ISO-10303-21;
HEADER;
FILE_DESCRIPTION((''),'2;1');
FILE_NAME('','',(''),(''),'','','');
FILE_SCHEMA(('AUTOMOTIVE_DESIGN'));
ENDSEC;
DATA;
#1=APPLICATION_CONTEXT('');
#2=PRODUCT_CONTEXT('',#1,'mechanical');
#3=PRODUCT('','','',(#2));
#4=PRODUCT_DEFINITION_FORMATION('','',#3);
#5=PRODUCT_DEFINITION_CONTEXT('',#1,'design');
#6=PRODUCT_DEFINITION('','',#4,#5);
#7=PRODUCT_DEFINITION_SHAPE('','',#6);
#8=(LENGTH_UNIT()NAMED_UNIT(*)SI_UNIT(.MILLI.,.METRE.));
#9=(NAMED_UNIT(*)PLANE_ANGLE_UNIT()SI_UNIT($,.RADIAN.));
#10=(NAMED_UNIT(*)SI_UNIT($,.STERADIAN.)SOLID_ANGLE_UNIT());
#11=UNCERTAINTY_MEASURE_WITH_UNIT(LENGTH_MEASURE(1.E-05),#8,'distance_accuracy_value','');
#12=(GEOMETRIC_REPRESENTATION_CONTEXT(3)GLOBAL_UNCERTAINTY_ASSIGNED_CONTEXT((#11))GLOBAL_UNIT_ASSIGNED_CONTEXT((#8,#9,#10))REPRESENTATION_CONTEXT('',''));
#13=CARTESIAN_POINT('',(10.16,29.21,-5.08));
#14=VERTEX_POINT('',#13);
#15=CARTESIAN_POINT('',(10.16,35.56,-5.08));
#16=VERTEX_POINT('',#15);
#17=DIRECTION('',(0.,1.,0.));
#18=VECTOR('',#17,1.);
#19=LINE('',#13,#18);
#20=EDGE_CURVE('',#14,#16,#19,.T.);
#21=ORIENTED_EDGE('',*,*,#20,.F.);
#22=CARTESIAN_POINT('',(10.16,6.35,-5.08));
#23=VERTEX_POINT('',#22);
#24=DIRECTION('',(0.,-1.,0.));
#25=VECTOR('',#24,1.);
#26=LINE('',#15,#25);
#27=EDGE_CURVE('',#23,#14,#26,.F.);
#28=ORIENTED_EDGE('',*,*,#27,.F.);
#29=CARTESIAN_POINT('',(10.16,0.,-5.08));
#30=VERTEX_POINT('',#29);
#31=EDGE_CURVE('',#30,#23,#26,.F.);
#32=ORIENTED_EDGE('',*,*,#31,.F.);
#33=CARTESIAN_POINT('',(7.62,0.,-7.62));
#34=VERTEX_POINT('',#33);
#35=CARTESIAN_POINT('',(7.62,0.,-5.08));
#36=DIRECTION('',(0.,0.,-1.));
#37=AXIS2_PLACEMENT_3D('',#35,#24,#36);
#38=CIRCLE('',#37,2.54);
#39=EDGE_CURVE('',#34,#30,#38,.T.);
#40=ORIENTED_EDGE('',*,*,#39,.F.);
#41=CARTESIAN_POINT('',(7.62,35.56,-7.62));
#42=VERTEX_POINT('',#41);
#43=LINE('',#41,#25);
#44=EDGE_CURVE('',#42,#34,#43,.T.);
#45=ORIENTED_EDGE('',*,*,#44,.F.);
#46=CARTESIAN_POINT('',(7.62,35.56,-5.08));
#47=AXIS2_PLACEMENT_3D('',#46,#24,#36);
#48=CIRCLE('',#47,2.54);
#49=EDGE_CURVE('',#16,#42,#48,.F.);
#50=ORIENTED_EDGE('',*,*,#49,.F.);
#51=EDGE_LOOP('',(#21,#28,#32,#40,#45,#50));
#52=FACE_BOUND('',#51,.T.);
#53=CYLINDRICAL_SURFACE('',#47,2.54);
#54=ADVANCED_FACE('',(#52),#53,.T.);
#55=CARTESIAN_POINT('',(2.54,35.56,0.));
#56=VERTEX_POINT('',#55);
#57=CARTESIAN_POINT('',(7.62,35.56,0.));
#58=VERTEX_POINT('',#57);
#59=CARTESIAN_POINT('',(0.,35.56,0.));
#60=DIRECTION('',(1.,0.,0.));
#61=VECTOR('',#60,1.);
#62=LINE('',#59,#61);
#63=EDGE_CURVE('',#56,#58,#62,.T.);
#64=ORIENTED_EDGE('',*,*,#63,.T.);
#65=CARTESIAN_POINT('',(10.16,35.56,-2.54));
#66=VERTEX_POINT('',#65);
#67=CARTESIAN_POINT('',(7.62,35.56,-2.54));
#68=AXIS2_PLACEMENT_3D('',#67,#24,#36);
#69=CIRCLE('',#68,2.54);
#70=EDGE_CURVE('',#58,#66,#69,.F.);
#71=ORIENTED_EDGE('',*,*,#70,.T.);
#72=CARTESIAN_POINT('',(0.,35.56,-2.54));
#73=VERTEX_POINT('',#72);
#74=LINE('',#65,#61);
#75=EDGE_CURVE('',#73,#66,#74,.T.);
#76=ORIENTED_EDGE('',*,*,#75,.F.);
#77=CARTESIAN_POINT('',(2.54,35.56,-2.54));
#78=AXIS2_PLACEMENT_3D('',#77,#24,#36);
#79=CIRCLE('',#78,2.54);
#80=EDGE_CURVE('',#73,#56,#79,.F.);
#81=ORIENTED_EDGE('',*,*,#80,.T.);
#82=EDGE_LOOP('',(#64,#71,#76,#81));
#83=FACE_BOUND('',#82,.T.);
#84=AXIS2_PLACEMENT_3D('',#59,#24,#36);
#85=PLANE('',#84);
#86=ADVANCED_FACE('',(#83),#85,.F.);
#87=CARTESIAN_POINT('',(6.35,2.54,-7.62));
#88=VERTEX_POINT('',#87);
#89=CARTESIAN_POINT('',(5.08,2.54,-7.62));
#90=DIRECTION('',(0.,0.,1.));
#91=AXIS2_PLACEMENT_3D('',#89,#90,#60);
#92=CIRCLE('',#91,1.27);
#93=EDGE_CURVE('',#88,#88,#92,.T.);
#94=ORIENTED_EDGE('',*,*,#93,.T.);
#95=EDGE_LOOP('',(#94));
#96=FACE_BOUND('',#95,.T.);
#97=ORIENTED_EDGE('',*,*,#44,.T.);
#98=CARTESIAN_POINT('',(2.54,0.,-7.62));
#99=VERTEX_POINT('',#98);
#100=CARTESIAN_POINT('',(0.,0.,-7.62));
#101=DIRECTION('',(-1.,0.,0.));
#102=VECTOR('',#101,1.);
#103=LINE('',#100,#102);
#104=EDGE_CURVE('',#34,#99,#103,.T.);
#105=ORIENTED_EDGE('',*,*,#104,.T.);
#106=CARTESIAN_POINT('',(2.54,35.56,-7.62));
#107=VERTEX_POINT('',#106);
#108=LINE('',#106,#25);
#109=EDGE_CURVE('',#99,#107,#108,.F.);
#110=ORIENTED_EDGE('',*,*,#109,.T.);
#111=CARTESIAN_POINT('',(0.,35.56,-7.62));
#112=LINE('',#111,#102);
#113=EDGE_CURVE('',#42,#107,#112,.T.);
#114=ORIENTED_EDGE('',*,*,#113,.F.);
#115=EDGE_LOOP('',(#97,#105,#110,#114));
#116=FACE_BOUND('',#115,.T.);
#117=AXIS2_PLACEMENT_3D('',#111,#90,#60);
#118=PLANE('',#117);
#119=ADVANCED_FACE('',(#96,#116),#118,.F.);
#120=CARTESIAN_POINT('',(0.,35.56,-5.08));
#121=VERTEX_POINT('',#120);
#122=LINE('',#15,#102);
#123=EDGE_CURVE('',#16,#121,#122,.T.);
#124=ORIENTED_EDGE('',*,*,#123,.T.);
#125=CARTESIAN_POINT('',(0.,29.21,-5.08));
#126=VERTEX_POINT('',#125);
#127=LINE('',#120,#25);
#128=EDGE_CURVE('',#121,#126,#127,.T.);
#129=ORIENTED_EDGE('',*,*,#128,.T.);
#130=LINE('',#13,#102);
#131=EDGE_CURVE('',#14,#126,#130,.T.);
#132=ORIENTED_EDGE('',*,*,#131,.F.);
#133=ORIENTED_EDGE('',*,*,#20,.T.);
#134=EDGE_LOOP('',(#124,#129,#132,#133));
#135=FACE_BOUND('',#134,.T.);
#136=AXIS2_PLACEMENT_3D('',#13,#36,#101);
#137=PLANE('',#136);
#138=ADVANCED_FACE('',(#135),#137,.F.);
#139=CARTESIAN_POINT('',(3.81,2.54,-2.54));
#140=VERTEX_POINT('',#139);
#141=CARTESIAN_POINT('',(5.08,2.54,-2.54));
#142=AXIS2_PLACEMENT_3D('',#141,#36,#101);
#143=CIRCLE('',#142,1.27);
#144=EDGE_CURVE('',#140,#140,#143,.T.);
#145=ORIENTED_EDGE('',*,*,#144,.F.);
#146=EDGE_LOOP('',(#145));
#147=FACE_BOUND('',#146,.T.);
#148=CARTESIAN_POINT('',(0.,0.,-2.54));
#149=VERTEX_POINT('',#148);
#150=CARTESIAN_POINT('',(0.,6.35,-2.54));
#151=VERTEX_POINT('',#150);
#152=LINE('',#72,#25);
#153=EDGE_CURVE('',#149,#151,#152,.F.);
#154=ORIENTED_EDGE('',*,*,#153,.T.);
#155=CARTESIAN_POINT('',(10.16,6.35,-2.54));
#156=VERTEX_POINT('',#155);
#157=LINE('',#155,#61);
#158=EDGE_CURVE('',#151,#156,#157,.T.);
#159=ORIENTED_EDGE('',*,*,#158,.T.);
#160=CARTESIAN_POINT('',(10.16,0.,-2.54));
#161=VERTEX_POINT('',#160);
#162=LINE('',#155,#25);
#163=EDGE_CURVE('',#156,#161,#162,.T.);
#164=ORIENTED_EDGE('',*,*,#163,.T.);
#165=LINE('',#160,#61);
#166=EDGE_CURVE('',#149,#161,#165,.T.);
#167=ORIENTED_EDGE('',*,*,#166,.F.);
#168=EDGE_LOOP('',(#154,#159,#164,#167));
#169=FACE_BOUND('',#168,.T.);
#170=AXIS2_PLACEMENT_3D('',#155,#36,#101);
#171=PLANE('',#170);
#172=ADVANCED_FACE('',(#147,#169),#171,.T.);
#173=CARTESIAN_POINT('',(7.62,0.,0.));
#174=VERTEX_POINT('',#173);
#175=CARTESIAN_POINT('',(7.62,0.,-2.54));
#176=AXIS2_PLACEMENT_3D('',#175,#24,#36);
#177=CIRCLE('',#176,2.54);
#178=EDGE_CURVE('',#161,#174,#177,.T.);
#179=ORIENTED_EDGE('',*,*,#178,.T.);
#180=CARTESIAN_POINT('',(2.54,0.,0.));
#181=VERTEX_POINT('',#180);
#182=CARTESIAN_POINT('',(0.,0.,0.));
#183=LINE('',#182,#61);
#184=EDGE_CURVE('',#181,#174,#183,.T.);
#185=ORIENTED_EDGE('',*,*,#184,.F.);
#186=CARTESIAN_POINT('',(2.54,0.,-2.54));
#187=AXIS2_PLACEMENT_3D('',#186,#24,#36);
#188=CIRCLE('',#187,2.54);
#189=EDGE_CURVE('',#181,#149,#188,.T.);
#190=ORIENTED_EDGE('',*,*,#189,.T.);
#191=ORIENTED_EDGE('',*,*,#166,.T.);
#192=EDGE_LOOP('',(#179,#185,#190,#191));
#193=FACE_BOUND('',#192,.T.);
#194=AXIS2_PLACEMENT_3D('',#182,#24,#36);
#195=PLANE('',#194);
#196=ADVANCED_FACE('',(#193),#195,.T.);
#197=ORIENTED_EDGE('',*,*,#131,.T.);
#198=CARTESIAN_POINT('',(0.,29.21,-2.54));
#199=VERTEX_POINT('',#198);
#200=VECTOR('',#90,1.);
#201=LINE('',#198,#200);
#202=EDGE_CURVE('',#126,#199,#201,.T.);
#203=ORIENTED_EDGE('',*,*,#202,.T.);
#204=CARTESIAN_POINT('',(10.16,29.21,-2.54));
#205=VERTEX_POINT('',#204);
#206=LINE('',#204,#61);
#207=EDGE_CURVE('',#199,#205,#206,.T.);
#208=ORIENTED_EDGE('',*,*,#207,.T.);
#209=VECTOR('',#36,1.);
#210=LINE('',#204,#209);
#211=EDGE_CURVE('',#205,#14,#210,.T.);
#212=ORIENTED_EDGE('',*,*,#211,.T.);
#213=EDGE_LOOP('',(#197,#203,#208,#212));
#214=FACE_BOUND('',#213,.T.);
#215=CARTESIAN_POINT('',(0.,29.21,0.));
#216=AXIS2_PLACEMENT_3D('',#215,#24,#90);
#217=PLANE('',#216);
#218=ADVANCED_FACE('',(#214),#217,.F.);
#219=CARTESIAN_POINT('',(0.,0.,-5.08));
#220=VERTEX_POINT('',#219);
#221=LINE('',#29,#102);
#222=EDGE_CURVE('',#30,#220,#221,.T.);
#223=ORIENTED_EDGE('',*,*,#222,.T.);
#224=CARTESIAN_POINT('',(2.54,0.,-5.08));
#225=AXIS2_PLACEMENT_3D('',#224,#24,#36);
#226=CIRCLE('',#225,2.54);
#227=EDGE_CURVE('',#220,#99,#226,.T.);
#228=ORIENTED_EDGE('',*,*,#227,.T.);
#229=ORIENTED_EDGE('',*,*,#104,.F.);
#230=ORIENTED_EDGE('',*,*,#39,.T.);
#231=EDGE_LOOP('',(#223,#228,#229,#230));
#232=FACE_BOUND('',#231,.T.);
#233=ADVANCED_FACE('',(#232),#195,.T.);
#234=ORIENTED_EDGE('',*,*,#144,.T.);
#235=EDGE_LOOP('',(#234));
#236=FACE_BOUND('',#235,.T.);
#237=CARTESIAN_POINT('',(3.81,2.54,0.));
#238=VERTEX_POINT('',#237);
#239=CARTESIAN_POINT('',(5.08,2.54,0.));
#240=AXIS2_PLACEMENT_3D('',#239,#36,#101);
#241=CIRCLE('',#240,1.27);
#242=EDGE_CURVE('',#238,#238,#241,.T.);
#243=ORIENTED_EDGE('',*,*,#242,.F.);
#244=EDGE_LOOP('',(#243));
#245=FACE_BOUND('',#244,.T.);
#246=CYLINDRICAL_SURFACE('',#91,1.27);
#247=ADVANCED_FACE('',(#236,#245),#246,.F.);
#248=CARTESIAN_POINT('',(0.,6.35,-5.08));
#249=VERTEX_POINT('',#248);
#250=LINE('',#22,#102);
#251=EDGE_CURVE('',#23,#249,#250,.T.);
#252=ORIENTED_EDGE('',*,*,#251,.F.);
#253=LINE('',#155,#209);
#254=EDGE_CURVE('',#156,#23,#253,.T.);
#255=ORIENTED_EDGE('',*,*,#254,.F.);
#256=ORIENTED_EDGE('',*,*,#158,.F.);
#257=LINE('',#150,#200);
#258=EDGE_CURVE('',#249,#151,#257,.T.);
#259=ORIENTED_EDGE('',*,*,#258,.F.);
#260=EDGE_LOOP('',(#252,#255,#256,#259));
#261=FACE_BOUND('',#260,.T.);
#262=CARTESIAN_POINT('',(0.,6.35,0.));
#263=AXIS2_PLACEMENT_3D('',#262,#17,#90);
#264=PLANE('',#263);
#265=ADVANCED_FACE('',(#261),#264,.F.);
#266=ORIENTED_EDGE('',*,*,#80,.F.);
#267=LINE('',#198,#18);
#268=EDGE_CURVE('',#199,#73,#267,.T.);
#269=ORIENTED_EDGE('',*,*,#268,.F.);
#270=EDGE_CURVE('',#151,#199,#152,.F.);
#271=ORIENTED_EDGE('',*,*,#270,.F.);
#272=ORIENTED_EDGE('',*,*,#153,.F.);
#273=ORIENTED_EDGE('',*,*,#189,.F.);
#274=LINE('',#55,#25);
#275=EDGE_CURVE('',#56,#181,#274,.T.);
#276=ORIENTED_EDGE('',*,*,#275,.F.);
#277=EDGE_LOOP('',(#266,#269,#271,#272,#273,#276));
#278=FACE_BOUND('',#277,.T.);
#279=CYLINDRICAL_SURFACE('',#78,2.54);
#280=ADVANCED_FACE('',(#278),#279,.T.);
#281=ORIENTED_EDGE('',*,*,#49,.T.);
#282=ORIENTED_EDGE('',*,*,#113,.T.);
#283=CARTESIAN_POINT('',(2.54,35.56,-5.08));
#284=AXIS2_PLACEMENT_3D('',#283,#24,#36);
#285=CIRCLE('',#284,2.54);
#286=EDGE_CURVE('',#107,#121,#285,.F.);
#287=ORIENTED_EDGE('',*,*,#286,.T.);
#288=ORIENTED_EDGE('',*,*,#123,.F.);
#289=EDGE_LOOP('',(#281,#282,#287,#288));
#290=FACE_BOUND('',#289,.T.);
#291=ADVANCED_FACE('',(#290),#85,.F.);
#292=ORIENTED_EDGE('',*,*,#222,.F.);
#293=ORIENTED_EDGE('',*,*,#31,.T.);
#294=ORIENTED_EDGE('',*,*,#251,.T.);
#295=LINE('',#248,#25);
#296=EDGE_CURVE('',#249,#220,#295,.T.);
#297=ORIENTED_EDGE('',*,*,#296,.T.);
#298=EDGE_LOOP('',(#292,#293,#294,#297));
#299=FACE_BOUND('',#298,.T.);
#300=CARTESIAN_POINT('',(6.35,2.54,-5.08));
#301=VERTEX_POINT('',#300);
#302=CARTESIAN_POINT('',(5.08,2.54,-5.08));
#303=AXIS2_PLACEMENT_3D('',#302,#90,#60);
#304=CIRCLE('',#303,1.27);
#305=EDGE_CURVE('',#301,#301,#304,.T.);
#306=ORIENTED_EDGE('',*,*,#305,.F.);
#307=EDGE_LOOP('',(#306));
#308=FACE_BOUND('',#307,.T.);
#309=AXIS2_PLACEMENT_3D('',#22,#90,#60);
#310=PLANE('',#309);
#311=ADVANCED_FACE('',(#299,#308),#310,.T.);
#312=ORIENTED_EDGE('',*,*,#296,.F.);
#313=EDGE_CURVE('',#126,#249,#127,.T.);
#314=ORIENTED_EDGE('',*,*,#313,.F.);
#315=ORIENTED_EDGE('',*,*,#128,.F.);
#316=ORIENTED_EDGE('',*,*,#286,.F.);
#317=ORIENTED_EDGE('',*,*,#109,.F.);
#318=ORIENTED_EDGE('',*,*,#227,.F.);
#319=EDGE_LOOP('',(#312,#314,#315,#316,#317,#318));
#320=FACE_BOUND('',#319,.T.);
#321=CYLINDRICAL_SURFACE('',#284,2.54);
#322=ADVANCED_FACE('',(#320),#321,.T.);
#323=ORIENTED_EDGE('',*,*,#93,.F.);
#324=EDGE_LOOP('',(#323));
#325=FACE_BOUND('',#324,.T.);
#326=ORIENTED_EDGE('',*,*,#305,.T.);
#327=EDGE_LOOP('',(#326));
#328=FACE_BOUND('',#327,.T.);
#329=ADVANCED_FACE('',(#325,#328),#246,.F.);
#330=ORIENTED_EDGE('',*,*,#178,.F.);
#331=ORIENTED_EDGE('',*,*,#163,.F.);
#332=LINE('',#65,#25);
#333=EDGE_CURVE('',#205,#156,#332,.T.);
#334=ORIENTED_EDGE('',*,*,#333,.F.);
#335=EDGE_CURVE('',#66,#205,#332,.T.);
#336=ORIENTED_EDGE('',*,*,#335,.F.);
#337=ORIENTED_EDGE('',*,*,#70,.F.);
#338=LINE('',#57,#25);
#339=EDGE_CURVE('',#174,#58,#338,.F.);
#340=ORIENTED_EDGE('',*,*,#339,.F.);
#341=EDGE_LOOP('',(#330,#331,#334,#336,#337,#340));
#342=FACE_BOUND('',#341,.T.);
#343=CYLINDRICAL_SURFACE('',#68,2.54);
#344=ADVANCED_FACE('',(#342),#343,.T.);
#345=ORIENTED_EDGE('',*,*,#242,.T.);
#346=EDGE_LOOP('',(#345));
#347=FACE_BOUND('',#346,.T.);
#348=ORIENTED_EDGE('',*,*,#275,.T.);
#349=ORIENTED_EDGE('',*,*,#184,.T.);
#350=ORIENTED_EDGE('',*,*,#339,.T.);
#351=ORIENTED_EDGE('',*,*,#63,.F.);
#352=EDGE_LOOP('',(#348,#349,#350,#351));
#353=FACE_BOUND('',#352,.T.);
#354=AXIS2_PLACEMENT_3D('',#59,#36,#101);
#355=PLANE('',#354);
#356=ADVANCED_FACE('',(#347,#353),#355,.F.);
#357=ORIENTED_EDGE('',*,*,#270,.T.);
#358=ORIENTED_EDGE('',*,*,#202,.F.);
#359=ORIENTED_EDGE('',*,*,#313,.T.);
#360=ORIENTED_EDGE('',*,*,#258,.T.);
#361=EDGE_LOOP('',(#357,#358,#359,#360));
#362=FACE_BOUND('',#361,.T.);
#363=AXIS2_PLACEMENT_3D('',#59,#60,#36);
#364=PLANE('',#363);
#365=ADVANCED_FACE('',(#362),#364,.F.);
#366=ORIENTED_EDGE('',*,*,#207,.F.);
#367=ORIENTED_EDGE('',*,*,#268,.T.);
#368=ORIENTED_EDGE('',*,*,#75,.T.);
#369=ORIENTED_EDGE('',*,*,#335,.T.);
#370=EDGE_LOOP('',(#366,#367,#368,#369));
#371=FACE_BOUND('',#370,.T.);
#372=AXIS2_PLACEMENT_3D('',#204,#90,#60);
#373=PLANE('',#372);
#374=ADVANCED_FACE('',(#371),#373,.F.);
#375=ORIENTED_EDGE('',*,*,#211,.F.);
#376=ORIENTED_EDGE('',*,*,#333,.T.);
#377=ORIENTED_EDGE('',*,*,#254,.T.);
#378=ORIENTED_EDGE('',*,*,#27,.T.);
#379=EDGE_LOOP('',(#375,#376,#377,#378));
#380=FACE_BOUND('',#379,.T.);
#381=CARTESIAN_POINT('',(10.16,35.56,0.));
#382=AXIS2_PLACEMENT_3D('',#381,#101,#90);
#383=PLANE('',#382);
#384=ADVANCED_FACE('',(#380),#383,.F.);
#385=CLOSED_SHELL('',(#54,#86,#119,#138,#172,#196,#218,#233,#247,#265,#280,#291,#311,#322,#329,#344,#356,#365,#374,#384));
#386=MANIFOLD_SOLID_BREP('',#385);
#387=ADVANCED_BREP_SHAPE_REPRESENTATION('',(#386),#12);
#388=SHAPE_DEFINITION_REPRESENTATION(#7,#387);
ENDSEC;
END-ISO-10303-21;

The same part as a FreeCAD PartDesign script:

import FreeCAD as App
import Part
import Sketcher
from FreeCAD import Vector
Q = App.Units.Quantity


def edges_at(feature, points):
    """Names of the edges that pass closest to the given points."""
    edges = feature.Shape.Edges
    near = lambda p: min(range(len(edges)), key=lambda i: edges[i].distToShape(Part.Vertex(*p))[0])
    return sorted({f"Edge{near(p) + 1}" for p in points})


def add_polygon(sketch, points):
    """Adds a closed chain of lines whose ends are joined by coincident constraints."""
    first, n = sketch.GeometryCount, len(points)
    for a, b in zip(points, points[1:] + points[:1]):
        sketch.addGeometry(Part.LineSegment(App.Vector(*a, 0), App.Vector(*b, 0)), False)
    for i in range(n):
        sketch.addConstraint(Sketcher.Constraint("Coincident", first + i, 2, first + (i + 1) % n, 1))

doc = App.newDocument("Part")
body = doc.addObject("PartDesign::Body", "Body")

# Sketch on XZ plane
sketch1 = body.newObject("Sketcher::SketchObject", "Sketch")
sketch1.AttachmentSupport = (doc.getObject("XZ_Plane"), [""])
sketch1.MapMode = "FlatFace"
add_polygon(sketch1, [(0, -8), (0, 0), (10, 0), (10, -8)])  # lines 0-3
sketch1.addConstraint([
    Sketcher.Constraint("Vertical", 0),
    Sketcher.Constraint("Horizontal", 1),
    Sketcher.Constraint("Vertical", 2),
    Sketcher.Constraint("Horizontal", 3),
    Sketcher.Constraint("Coincident", 0, 2, -1, 1),
    Sketcher.Constraint("DistanceX", 1, 1, 1, 2, Q("0.4 in")),
    Sketcher.Constraint("DistanceY", 0, 1, 0, 2, Q("0.3 in")),
])
pad1 = body.newObject("PartDesign::Pad", "Pad")
pad1.Profile = sketch1
pad1.Length = Q("1.4 in")
pad1.Reversed = True
doc.recompute()

fillet = body.newObject("PartDesign::Fillet", "Fillet")
fillet.Base = (pad1, edges_at(pad1, [
    (0, 17.78, -7.62),
    (10.16, 17.78, -7.62),
    (10.16, 17.78, 0),
    (0, 17.78, 0),
]))
fillet.Radius = Q("0.1 in")

# Sketch on XZ plane
sketch2 = body.newObject("Sketcher::SketchObject", "Sketch001")
sketch2.AttachmentSupport = (doc.getObject("XZ_Plane"), [""])
sketch2.MapMode = "FlatFace"
add_polygon(sketch2, [(0, -5.1), (0, -2.5), (10.2, -2.5), (10.2, -5.1)])  # lines 0-3
sketch2.addConstraint([
    Sketcher.Constraint("Vertical", 0),
    Sketcher.Constraint("Horizontal", 1),
    Sketcher.Constraint("Vertical", 2),
    Sketcher.Constraint("Horizontal", 3),
    Sketcher.Constraint("PointOnObject", 0, 2, -2),
    Sketcher.Constraint("DistanceX", 1, 1, 1, 2, Q("0.4 in")),
    Sketcher.Constraint("DistanceY", 0, 1, 0, 2, Q("0.1 in")),
    Sketcher.Constraint("DistanceY", 0, 2, -1, 1, Q("0.1 in")),
])
pocket1 = body.newObject("PartDesign::Pocket", "Pocket")
pocket1.Profile = sketch2
pocket1.Length = Q("0.25 in")
doc.recompute()

datumplane = body.newObject("PartDesign::Plane", "DatumPlane")
datumplane.AttachmentSupport = (doc.getObject("XZ_Plane"), [""])
datumplane.MapMode = "FlatFace"
datumplane.AttachmentOffset = App.Placement(Vector(0, 0, -0.7 * 25.4), App.Rotation())
mirrored = body.newObject("PartDesign::Mirrored", "Mirrored")
mirrored.Originals = [pocket1]
mirrored.MirrorPlane = (datumplane, [""])
body.Tip = mirrored

# Sketch on XY plane
sketch3 = body.newObject("Sketcher::SketchObject", "Sketch002")
sketch3.AttachmentSupport = (doc.getObject("XY_Plane"), [""])
sketch3.MapMode = "FlatFace"
sketch3.addGeometry(Part.Circle(Vector(5.1, 2.5, 0), Vector(0, 0, 1), 1.3), False)
sketch3.addConstraint([
    Sketcher.Constraint("Diameter", 0, Q("0.1 in")),
    Sketcher.Constraint("DistanceX", -1, 1, 0, 3, Q("0.2 in")),
    Sketcher.Constraint("DistanceY", -1, 1, 0, 3, Q("0.1 in")),
])
pocket2 = body.newObject("PartDesign::Pocket", "Pocket001")
pocket2.Profile = sketch3
pocket2.Type = "ThroughAll"
pocket2.Midplane = True

doc.recompute()
